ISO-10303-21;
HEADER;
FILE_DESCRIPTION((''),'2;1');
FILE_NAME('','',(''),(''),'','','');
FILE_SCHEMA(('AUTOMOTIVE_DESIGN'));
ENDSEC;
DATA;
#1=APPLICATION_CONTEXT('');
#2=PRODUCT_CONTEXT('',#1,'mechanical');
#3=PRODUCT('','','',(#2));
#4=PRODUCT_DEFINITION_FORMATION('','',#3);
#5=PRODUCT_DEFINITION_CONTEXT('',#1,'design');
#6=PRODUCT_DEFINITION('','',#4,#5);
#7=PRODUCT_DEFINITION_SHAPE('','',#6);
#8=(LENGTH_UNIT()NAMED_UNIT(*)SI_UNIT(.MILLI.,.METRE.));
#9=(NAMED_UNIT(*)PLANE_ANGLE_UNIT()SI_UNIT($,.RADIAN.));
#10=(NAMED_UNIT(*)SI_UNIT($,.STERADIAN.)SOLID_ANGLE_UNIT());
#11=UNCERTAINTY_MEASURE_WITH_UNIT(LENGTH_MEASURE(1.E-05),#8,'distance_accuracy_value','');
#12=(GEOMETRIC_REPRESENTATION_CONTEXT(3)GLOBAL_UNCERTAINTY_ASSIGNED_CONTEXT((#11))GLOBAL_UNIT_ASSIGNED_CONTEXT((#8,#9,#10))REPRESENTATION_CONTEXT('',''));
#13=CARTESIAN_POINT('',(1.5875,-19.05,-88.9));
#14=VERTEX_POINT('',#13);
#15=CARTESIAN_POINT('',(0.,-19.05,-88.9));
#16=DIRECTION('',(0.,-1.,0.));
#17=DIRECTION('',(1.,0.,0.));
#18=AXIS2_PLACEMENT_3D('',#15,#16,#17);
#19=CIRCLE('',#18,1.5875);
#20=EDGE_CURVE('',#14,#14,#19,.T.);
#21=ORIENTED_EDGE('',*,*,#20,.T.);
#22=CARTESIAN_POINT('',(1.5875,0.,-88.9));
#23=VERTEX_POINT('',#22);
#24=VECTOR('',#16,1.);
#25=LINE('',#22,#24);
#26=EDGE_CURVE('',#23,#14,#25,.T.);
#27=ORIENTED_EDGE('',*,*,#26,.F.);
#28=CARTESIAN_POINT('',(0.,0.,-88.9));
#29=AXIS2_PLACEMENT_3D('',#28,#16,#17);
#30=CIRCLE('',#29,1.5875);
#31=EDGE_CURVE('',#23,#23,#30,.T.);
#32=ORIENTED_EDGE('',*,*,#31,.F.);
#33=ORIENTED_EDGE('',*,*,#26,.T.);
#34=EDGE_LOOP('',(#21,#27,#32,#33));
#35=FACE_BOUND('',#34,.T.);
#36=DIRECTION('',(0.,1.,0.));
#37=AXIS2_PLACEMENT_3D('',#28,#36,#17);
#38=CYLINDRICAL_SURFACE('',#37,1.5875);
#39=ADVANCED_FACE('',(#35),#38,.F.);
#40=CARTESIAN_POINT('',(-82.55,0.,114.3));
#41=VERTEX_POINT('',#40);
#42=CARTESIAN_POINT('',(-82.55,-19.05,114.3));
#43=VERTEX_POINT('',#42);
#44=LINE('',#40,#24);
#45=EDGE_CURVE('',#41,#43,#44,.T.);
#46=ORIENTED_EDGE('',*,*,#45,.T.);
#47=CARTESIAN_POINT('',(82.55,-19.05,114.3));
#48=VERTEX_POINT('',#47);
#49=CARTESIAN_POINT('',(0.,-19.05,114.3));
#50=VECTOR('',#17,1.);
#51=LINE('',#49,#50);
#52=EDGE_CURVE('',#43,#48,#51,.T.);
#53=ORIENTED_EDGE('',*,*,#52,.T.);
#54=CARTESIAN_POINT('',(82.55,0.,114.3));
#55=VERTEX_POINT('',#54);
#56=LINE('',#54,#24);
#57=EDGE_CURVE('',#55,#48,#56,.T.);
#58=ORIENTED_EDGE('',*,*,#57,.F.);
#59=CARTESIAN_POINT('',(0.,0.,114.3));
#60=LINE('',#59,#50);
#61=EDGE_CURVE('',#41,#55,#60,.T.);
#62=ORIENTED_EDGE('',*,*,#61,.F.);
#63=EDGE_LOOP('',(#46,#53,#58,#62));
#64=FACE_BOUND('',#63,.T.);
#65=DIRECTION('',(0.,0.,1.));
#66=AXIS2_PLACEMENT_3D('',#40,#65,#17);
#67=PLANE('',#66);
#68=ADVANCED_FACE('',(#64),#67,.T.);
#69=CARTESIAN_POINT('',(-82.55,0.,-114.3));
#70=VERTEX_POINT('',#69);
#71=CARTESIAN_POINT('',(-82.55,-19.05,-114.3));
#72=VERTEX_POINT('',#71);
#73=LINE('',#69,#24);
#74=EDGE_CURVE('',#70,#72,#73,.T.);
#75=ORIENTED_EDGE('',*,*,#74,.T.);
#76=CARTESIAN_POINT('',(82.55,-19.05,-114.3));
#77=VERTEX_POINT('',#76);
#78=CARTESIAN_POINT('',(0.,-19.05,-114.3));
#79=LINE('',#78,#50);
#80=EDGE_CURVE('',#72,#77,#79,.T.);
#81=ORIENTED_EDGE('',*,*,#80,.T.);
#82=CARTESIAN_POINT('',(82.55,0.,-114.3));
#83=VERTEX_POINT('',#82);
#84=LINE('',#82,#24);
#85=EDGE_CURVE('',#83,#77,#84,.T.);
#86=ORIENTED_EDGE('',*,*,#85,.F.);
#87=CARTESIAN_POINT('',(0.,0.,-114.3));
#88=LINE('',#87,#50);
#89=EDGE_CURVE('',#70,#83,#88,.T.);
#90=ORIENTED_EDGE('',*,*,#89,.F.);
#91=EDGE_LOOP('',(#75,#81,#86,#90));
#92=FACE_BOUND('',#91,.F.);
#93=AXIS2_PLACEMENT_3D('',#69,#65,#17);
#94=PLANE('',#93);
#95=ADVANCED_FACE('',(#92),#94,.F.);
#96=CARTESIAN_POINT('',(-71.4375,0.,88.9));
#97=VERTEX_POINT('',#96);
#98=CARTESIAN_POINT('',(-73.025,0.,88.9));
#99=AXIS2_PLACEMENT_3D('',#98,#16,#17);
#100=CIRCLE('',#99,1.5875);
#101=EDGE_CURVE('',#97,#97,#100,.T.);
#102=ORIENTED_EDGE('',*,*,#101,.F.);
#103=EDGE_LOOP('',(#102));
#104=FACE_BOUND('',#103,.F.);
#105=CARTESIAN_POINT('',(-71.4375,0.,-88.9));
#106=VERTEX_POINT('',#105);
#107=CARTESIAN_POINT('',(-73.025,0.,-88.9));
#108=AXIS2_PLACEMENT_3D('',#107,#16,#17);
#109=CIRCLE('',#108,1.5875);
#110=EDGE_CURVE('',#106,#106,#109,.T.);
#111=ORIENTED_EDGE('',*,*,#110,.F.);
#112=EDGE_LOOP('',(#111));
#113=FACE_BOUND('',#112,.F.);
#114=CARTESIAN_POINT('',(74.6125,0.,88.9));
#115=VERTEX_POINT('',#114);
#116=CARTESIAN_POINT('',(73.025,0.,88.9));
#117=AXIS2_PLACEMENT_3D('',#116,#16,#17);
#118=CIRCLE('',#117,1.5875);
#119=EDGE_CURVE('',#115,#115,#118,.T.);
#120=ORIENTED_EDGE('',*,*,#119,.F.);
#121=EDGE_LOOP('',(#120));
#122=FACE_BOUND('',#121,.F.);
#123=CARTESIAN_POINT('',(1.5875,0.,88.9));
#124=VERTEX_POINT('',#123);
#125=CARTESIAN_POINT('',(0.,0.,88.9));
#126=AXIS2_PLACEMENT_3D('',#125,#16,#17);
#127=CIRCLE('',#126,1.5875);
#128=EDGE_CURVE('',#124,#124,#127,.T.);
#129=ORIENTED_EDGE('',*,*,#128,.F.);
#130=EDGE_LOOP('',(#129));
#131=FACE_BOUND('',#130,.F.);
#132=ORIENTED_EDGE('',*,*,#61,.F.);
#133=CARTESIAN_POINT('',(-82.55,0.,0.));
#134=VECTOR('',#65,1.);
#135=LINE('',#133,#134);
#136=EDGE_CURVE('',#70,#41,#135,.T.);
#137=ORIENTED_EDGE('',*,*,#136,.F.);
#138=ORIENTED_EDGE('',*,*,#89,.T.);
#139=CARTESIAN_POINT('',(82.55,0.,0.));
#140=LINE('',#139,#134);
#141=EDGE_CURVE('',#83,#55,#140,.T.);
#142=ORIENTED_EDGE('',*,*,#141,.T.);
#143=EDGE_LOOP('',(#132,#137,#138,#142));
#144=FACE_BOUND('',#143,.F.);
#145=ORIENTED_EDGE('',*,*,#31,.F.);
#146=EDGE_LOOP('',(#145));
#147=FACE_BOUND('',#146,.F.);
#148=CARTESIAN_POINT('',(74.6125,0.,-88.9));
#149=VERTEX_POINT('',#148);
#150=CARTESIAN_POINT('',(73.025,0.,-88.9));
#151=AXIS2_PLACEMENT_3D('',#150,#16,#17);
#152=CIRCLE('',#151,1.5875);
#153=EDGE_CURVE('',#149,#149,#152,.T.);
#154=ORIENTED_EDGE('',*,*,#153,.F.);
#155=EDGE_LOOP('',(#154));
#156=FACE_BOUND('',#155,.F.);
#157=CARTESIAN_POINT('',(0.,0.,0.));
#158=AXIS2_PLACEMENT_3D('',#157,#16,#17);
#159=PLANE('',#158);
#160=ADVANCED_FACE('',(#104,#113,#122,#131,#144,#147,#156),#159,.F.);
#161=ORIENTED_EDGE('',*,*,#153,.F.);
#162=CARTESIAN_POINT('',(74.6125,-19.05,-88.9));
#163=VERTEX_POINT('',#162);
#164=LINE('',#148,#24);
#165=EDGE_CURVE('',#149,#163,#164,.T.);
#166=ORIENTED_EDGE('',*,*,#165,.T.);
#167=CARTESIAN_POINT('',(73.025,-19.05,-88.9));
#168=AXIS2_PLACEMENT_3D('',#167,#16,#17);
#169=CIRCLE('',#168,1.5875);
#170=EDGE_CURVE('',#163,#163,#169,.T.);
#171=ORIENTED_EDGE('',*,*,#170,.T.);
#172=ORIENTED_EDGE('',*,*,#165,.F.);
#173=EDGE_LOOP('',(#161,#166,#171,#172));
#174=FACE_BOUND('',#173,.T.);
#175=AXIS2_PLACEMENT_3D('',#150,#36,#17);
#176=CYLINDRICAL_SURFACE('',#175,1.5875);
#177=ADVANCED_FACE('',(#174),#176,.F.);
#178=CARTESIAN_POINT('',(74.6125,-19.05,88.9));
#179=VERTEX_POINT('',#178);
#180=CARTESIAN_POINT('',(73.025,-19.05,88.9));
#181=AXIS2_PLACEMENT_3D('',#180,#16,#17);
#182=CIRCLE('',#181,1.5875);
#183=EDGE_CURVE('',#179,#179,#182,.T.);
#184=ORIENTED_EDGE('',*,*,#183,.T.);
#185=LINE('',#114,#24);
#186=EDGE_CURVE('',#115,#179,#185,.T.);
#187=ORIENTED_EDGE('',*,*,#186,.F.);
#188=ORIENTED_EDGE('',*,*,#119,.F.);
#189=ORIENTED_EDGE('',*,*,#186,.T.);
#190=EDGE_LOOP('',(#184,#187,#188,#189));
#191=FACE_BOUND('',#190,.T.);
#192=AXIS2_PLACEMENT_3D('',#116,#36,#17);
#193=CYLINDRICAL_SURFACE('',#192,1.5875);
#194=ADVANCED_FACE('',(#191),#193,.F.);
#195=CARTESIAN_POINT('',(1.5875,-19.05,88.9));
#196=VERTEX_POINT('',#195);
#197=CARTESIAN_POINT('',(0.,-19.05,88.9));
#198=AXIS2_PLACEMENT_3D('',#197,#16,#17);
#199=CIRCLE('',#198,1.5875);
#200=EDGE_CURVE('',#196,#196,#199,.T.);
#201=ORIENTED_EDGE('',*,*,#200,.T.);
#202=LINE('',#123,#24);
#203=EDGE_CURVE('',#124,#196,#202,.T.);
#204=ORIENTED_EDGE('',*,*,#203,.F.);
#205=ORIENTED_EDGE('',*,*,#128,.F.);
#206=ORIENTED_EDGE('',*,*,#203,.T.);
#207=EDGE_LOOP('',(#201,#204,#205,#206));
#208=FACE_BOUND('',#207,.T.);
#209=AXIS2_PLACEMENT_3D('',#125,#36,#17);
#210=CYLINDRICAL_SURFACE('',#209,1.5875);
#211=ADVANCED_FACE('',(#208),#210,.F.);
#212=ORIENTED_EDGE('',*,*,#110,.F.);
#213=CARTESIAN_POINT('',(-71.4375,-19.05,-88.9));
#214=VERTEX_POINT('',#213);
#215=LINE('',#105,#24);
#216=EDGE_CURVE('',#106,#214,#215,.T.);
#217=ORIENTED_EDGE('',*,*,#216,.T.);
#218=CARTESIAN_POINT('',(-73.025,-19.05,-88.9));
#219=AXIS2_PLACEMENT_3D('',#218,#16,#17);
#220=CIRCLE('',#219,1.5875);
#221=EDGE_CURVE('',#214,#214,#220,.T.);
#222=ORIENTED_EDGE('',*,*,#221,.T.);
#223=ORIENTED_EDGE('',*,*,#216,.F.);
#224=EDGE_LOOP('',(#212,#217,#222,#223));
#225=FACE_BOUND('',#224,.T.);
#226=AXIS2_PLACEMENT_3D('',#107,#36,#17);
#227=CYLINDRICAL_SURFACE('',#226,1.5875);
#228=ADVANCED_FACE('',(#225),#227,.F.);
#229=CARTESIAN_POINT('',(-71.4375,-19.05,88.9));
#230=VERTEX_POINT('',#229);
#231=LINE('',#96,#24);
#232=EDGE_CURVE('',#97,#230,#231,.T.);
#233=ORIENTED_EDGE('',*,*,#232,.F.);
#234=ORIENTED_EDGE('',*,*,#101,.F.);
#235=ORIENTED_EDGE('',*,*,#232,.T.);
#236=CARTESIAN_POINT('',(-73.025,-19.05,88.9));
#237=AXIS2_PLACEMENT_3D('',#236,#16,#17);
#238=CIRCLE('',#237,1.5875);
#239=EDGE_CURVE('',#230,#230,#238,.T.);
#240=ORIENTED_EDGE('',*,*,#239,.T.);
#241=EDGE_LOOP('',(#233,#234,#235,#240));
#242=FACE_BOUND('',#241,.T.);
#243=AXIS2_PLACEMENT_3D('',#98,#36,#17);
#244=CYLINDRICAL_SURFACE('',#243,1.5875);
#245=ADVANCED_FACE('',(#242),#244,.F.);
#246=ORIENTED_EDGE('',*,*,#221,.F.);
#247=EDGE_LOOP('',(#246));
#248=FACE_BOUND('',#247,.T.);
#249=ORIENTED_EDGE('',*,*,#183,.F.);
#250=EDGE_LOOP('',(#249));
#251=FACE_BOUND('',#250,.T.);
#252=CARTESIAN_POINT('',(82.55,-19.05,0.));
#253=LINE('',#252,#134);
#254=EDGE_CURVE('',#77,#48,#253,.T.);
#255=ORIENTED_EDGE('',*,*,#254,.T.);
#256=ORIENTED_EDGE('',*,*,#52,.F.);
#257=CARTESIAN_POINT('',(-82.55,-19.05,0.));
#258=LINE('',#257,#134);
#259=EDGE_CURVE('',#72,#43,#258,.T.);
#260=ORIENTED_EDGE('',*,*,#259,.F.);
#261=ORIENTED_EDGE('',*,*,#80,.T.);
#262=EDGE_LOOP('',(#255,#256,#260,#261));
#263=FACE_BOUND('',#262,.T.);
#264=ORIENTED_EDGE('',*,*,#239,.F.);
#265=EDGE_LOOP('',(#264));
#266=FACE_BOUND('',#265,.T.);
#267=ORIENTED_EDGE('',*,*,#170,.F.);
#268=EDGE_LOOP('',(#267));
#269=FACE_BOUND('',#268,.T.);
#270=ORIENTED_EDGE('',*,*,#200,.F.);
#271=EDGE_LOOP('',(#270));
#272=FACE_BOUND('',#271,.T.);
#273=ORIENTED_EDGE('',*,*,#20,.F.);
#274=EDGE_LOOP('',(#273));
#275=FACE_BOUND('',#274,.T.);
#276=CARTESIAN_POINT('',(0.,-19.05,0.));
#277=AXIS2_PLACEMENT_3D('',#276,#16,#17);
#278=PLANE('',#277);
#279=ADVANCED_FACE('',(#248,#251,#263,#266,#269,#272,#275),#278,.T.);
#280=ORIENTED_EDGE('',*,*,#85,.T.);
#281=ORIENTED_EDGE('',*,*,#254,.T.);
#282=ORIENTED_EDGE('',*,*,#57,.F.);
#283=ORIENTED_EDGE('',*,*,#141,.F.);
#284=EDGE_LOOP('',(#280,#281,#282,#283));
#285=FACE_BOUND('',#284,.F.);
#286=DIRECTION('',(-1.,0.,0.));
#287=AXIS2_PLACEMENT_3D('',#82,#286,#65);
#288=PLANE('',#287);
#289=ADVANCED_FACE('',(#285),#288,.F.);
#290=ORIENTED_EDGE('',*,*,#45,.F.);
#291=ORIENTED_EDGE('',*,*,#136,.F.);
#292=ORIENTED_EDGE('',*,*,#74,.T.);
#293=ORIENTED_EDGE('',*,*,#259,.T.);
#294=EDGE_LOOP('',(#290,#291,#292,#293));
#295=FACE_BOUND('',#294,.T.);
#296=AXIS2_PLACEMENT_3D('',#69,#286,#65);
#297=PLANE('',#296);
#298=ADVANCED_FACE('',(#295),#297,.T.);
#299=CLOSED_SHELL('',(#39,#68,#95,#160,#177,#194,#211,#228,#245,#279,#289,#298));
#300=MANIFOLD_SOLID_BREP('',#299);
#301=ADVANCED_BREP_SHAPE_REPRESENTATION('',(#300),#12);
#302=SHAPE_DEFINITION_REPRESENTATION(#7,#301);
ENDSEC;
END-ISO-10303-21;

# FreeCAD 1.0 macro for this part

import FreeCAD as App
import Part
import Sketcher
from FreeCAD import Vector
Q = App.Units.Quantity

doc = App.newDocument("Part")
params = doc.addObject("Spreadsheet::Sheet", "Params")
for row, (alias, value) in enumerate([
    ("sketch1_height", "9 in"),
    ("sketch1_diameter", "0.125 in"),
    ("sketch1_width", "6.5 in"),
    ("pad1_length", "0.75 in"),
], start=1):
    params.set(f"A{row}", alias)
    params.set(f"B{row}", "=" + value)
    params.setAlias(f"B{row}", alias)

body = doc.addObject("PartDesign::Body", "Body")

sketch1 = doc.addObject("Sketcher::SketchObject", "Sketch")
body.addObject(sketch1)
sketch1.AttachmentSupport = (doc.XZ_Plane, [""])
sketch1.MapMode = "FlatFace"
sketch1.addGeometry(Part.LineSegment(Vector(-82.55, 114.3, 0), Vector(-82.55, -114.3, 0)), False)
sketch1.addGeometry(Part.LineSegment(Vector(-82.55, -114.3, 0), Vector(82.55, -114.3, 0)), False)
sketch1.addGeometry(Part.LineSegment(Vector(82.55, -114.3, 0), Vector(82.55, 114.3, 0)), False)
sketch1.addGeometry(Part.LineSegment(Vector(82.55, 114.3, 0), Vector(-82.55, 114.3, 0)), False)
sketch1.addGeometry(Part.Circle(Vector(-73.025, -88.9, 0), Vector(0, 0, 1), 1.5875), False)
sketch1.addGeometry(Part.Circle(Vector(0, -88.9, 0), Vector(0, 0, 1), 1.5875), False)
sketch1.addGeometry(Part.Circle(Vector(73.025, -88.9, 0), Vector(0, 0, 1), 1.5875), False)
sketch1.addGeometry(Part.Circle(Vector(-73.025, 88.9, 0), Vector(0, 0, 1), 1.5875), False)
sketch1.addGeometry(Part.Circle(Vector(0, 88.9, 0), Vector(0, 0, 1), 1.5875), False)
sketch1.addGeometry(Part.Circle(Vector(73.025, 88.9, 0), Vector(0, 0, 1), 1.5875), False)
sketch1.addConstraint(Sketcher.Constraint("Coincident", 0, 2, 1, 1))
sketch1.addConstraint(Sketcher.Constraint("Coincident", 1, 2, 2, 1))
sketch1.addConstraint(Sketcher.Constraint("Coincident", 2, 2, 3, 1))
sketch1.addConstraint(Sketcher.Constraint("Coincident", 3, 2, 0, 1))
sketch1.addConstraint(Sketcher.Constraint("Vertical", 0))
sketch1.addConstraint(Sketcher.Constraint("Horizontal", 1))
sketch1.addConstraint(Sketcher.Constraint("Vertical", 2))
sketch1.addConstraint(Sketcher.Constraint("Horizontal", 3))
sketch1.addConstraint(Sketcher.Constraint("Equal", 4, 5))
sketch1.addConstraint(Sketcher.Constraint("Equal", 5, 6))
sketch1.addConstraint(Sketcher.Constraint("Equal", 6, 7))
sketch1.addConstraint(Sketcher.Constraint("Equal", 7, 8))
sketch1.addConstraint(Sketcher.Constraint("Equal", 8, 9))
sketch1.addConstraint(Sketcher.Constraint("Symmetric", 6, 3, 7, 3, -1, 1))
sketch1.addConstraint(Sketcher.Constraint("Symmetric", 5, 3, 8, 3, -1, 1))
sketch1.addConstraint(Sketcher.Constraint("Symmetric", 4, 3, 9, 3, -1, 1))
sketch1.addConstraint(Sketcher.Constraint("Symmetric", 0, 2, 2, 2, -1, 1))
sketch1.addConstraint(Sketcher.Constraint("Symmetric", 4, 3, 6, 3, -2))
sketch1.addConstraint(Sketcher.Constraint("PointOnObject", 5, 3, -2))
sketch1.addConstraint(Sketcher.Constraint("Horizontal", 4, 3, 5, 3))
sketch1.addConstraint(Sketcher.Constraint("DistanceY", 0, 2, 0, 1, Q("9 in")))
sketch1.addConstraint(Sketcher.Constraint("Diameter", 4, Q("0.125 in")))
sketch1.addConstraint(Sketcher.Constraint("DistanceX", 1, 1, 1, 2, Q("6.5 in")))
sketch1.addConstraint(Sketcher.Constraint("DistanceY", 4, 3, 7, 3, Q("7 in")))
sketch1.addConstraint(Sketcher.Constraint("DistanceX", 4, 3, 6, 3, Q("5.75 in")))
sketch1.setExpression("Constraints[20]", "Params.sketch1_height")
sketch1.setExpression("Constraints[21]", "Params.sketch1_diameter")
sketch1.setExpression("Constraints[22]", "Params.sketch1_width")
pad1 = doc.addObject("PartDesign::Pad", "Pad")
body.addObject(pad1)
pad1.Profile = sketch1
pad1.setExpression("Length", "Params.pad1_length")

doc.recompute()
